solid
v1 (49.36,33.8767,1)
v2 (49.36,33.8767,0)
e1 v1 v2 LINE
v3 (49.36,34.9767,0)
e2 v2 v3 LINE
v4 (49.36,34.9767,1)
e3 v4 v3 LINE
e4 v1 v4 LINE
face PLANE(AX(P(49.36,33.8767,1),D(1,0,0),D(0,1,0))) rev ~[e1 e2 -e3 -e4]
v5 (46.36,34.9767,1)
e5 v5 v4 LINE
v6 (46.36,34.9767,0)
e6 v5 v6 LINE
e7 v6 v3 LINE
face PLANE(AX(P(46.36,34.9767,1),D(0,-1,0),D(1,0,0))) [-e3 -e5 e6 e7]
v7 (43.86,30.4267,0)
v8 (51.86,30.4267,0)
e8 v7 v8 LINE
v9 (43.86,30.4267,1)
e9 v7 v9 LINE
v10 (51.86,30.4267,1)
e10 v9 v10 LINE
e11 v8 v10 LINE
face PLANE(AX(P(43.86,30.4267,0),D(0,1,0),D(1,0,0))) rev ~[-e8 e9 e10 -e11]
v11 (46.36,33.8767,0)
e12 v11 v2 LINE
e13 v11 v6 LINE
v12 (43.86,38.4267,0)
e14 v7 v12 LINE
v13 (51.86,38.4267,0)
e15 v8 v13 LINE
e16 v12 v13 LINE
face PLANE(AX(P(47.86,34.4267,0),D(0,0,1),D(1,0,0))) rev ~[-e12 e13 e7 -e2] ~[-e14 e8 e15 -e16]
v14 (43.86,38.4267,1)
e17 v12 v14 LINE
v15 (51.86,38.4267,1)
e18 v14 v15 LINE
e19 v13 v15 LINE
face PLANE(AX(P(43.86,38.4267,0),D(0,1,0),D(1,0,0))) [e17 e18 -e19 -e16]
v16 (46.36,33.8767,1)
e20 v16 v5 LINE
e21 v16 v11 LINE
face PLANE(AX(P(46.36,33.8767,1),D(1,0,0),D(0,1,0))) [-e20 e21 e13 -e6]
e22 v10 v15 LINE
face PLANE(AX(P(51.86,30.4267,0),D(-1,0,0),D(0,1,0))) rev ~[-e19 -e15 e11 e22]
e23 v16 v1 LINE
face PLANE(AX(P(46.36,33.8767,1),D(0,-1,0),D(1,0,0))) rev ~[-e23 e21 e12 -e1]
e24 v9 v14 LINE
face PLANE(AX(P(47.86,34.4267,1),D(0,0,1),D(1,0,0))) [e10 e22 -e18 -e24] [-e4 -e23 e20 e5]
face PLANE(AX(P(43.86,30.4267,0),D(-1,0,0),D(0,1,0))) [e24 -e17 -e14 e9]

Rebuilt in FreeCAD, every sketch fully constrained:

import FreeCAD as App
import Part
import Sketcher

V = App.Vector


def add_polygon(sketch, points):
    """Adds a closed chain of lines whose ends are joined by coincident constraints."""
    first, n = sketch.GeometryCount, len(points)
    for a, b in zip(points, points[1:] + points[:1]):
        sketch.addGeometry(Part.LineSegment(App.Vector(*a, 0), App.Vector(*b, 0)), False)
    for i in range(n):
        sketch.addConstraint(Sketcher.Constraint("Coincident", first + i, 2, first + (i + 1) % n, 1))

doc = App.newDocument("Part")
body = doc.addObject("PartDesign::Body", "Body")

# Sketch on XY plane
sketch1 = doc.addObject("Sketcher::SketchObject", "Sketch")
body.addObject(sketch1)
sketch1.AttachmentSupport = (doc.XY_Plane, [""])
sketch1.MapMode = "FlatFace"
sketch1.AttachmentOffset = App.Placement(V(0, 0, 1), App.Rotation())
add_polygon(sketch1, [(33.36, 34.9767), (33.36, 33.8767), (36.36, 33.8767), (36.36, 34.9767)])  # lines 0-3
sketch1.addConstraint(Sketcher.Constraint("Vertical", 0))
sketch1.addConstraint(Sketcher.Constraint("Horizontal", 1))
sketch1.addConstraint(Sketcher.Constraint("Vertical", 2))
sketch1.addConstraint(Sketcher.Constraint("Horizontal", 3))
sketch1.addConstraint(Sketcher.Constraint("DistanceX", 1, 1, 1, 2, 3.0))
sketch1.addConstraint(Sketcher.Constraint("DistanceY", 0, 2, 0, 1, 1.1))
sketch1.addConstraint(Sketcher.Constraint("DistanceX", -1, 1, 0, 2, 33.36))
sketch1.addConstraint(Sketcher.Constraint("DistanceY", -1, 1, 0, 2, 33.8767))
pad1 = doc.addObject("PartDesign::Pad", "Pad")
body.addObject(pad1)
pad1.Profile = sketch1
pad1.Length = 1
pad1.Reversed = True
body2 = doc.addObject("PartDesign::Body", "Body001")

# Sketch on XY plane
sketch2 = doc.addObject("Sketcher::SketchObject", "Sketch001")
body2.addObject(sketch2)
sketch2.AttachmentSupport = (doc.getObject("XY_Plane001"), [""])
sketch2.MapMode = "FlatFace"
add_polygon(sketch2, [(30.86, 38.4267), (30.86, 30.4267), (38.86, 30.4267), (38.86, 38.4267)])  # lines 0-3
sketch2.addConstraint(Sketcher.Constraint("Vertical", 0))
sketch2.addConstraint(Sketcher.Constraint("Horizontal", 1))
sketch2.addConstraint(Sketcher.Constraint("Vertical", 2))
sketch2.addConstraint(Sketcher.Constraint("Horizontal", 3))
sketch2.addConstraint(Sketcher.Constraint("Equal", 3, 0))
sketch2.addConstraint(Sketcher.Constraint("DistanceX", 1, 1, 1, 2, 8.0))
sketch2.addConstraint(Sketcher.Constraint("DistanceX", -1, 1, 0, 2, 30.86))
sketch2.addConstraint(Sketcher.Constraint("DistanceY", -1, 1, 0, 2, 30.4267))
pad2 = doc.addObject("PartDesign::Pad", "Pad001")
body2.addObject(pad2)
pad2.Profile = sketch2
pad2.Length = 1
doc.recompute()

boolean = doc.addObject("PartDesign::Boolean", "Boolean")
body2.addObject(boolean)
boolean.Type = "Cut"
boolean.addObjects([body])
body3 = doc.addObject("PartDesign::Body", "Body002")
doc.recompute()

body2.Placement = App.Placement(V(13, 0, 0), App.Rotation(V(0, 0, 1), 0))
boolean2 = doc.addObject("PartDesign::Boolean", "Boolean001")
body3.addObject(boolean2)
boolean2.Type = "Fuse"
boolean2.addObjects([body2])

doc.recompute()
